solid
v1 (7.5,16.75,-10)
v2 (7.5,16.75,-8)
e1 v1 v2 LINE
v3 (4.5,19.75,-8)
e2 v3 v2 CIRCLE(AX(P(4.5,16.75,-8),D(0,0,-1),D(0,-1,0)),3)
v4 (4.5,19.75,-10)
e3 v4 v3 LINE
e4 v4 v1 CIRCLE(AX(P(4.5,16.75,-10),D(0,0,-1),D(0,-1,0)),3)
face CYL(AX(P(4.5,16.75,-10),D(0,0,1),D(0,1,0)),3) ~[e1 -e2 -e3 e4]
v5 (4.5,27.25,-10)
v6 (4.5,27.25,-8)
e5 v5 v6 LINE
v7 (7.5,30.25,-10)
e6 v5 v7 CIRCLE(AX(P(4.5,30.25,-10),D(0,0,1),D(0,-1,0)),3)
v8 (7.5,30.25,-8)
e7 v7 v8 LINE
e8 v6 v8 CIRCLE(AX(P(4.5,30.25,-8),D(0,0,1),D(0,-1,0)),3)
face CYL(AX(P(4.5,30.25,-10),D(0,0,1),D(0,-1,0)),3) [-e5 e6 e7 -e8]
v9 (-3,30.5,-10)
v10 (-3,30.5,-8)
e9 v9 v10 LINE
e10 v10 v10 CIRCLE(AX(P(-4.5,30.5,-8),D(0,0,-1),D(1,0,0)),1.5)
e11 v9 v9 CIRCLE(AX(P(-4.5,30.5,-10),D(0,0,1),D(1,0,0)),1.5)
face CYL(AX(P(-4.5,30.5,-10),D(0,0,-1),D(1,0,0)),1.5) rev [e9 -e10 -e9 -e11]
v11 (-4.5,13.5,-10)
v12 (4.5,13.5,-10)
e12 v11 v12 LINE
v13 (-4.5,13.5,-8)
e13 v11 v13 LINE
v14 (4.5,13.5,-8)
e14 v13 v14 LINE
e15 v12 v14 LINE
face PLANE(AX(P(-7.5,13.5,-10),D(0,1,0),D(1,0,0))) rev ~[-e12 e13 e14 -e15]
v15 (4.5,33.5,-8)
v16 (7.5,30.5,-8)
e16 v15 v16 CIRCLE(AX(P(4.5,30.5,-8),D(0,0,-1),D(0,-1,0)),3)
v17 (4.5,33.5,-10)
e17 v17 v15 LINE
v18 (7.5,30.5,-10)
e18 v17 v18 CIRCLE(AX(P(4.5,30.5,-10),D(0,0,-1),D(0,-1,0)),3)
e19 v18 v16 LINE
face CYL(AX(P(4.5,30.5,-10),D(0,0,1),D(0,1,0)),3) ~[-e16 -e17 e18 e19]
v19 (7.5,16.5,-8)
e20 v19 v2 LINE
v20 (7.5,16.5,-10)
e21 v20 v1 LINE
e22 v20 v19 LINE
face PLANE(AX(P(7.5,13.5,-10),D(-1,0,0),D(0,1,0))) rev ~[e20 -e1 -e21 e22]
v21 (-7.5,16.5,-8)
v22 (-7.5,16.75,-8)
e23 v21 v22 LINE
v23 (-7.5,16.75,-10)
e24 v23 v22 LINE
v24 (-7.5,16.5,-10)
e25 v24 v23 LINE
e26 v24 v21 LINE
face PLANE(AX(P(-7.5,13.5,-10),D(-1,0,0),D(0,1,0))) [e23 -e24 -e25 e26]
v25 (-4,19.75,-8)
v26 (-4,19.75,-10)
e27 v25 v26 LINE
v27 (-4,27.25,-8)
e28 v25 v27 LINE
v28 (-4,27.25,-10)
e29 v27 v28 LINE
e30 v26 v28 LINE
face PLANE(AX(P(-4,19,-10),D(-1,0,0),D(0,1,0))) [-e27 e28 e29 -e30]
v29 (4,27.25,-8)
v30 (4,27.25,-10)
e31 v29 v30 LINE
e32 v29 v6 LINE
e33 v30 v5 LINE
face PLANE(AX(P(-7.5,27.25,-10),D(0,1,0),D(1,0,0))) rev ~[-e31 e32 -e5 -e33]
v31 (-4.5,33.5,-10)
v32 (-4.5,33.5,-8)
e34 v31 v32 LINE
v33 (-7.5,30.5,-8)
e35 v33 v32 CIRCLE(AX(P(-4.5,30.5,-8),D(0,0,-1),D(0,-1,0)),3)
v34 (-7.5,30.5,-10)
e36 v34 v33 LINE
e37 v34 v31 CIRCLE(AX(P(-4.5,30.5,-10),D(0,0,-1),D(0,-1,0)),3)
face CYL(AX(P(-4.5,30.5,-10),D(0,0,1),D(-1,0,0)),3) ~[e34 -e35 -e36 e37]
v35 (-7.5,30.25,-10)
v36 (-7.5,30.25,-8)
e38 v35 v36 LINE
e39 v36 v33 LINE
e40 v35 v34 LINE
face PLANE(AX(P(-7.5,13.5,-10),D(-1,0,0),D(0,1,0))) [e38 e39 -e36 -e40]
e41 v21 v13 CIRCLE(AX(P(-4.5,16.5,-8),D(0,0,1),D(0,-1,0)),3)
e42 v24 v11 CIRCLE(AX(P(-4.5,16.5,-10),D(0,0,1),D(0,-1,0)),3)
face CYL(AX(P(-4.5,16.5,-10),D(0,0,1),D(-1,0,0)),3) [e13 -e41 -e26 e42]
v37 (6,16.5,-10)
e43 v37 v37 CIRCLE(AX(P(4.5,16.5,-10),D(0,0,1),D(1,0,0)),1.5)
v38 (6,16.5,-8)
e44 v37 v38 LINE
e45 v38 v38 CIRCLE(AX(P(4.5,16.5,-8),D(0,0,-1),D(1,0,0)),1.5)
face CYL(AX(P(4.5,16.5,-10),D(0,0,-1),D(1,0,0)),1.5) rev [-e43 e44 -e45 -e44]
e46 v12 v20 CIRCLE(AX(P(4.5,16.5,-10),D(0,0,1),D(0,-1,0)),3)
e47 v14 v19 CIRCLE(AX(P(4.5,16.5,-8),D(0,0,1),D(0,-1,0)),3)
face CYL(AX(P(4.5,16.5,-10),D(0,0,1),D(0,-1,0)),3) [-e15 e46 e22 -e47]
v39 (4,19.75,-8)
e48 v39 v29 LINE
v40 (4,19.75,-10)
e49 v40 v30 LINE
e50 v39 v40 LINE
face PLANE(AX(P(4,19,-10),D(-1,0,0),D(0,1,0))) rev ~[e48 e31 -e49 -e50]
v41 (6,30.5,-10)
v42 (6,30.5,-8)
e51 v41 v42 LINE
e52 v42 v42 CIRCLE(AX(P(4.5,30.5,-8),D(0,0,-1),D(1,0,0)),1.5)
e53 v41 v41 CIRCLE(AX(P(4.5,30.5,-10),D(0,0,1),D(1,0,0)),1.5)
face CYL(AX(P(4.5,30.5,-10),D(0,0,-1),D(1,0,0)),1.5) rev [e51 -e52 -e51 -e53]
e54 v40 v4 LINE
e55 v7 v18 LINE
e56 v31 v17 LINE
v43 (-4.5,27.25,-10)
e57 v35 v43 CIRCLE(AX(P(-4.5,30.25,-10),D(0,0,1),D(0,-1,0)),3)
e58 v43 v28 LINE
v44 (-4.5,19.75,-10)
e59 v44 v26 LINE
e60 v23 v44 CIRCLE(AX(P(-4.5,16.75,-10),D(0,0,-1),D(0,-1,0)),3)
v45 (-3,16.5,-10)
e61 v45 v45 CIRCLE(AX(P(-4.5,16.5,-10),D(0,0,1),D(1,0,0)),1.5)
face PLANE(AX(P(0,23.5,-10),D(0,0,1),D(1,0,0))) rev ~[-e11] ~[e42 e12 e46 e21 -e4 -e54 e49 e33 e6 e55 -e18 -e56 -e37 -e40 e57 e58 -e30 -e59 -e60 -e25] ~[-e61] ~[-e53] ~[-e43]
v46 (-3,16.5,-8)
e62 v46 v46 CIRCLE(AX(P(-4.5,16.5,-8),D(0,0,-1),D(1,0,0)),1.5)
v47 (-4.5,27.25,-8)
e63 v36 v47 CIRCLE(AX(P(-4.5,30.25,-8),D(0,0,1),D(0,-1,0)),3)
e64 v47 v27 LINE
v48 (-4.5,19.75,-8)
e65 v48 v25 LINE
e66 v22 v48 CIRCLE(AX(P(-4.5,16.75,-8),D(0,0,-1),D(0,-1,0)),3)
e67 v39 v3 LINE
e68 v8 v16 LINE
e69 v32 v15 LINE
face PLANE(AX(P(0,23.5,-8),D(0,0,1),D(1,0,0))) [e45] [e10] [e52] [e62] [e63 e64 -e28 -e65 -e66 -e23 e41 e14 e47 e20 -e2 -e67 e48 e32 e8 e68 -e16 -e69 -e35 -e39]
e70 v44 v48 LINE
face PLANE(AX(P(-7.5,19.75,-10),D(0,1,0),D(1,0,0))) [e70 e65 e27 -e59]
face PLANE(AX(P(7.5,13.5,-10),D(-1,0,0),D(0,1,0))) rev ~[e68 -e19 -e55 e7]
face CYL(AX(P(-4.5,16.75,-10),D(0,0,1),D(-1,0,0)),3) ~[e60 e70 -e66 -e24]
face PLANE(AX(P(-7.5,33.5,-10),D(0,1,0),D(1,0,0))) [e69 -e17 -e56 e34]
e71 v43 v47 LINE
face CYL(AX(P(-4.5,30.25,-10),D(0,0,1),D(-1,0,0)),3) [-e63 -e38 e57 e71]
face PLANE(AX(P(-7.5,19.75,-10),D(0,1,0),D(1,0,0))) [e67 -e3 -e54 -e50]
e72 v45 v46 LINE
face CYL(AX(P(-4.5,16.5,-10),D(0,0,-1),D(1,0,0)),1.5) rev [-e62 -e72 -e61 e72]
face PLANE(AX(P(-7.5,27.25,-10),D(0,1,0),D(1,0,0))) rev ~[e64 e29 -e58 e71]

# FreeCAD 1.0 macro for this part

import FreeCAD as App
import Part
import Sketcher
from FreeCAD import Vector


def edges_at(feature, points):
    """Names of the edges that pass closest to the given points."""
    edges = feature.Shape.Edges
    near = lambda p: min(range(len(edges)), key=lambda i: edges[i].distToShape(Part.Vertex(*p))[0])
    return sorted({f"Edge{near(p) + 1}" for p in points})

doc = App.newDocument("Part")
body = doc.addObject("PartDesign::Body", "Body")

sketch1 = doc.addObject("Sketcher::SketchObject", "Sketch")
body.addObject(sketch1)
sketch1.AttachmentSupport = (doc.XY_Plane, [""])
sketch1.MapMode = "FlatFace"
sketch1.AttachmentOffset = App.Placement(Vector(0, 0, -7), App.Rotation())
sketch1.addGeometry(Part.Circle(Vector(-4.5, -50.5, 0), Vector(0, 0, 1), 1.5), False)
sketch1.addConstraint(Sketcher.Constraint("Diameter", 0, 3.0))
sketch1.addConstraint(Sketcher.Constraint("DistanceX", 0, 3, -1, 1, 4.5))
sketch1.addConstraint(Sketcher.Constraint("DistanceY", 0, 3, -1, 1, 50.5))
pad1 = doc.addObject("PartDesign::Pad", "Pad")
body.addObject(pad1)
pad1.Profile = sketch1
pad1.Length = 14
body2 = doc.addObject("PartDesign::Body", "Body001")
body2.AllowCompound = True

sketch2 = doc.addObject("Sketcher::SketchObject", "Sketch001")
body2.addObject(sketch2)
sketch2.AttachmentSupport = (doc.getObject("XY_Plane001"), [""])
sketch2.MapMode = "FlatFace"
sketch2.AttachmentOffset = App.Placement(Vector(0, 0, -7), App.Rotation())
sketch2.addGeometry(Part.Circle(Vector(4.5, -50.5, 0), Vector(0, 0, 1), 1.5), False)
sketch2.addConstraint(Sketcher.Constraint("Diameter", 0, 3.0))
sketch2.addConstraint(Sketcher.Constraint("DistanceX", -1, 1, 0, 3, 4.5))
sketch2.addConstraint(Sketcher.Constraint("DistanceY", 0, 3, -1, 1, 50.5))
pad2 = doc.addObject("PartDesign::Pad", "Pad001")
body2.addObject(pad2)
pad2.Profile = sketch2
pad2.Length = 14
doc.recompute()

boolean = doc.addObject("PartDesign::Boolean", "Boolean")
body2.addObject(boolean)
boolean.Type = "Fuse"
boolean.addObjects([body])
body3 = doc.addObject("PartDesign::Body", "Body002")
body3.AllowCompound = True
doc.recompute()

body2.Placement = App.Placement(Vector(0, 4, -3), App.Rotation(Vector(0, 0, 1), 0))
boolean2 = doc.addObject("PartDesign::Boolean", "Boolean001")
body3.addObject(boolean2)
boolean2.Type = "Fuse"
boolean2.addObjects([body2])
body4 = doc.addObject("PartDesign::Body", "Body003")

sketch3 = doc.addObject("Sketcher::SketchObject", "Sketch002")
body4.addObject(sketch3)
sketch3.AttachmentSupport = (doc.getObject("XY_Plane003"), [""])
sketch3.MapMode = "FlatFace"
sketch3.AttachmentOffset = App.Placement(Vector(0, 0, -7), App.Rotation())
sketch3.addGeometry(Part.Circle(Vector(-4.5, -50.5, 0), Vector(0, 0, 1), 1.5), False)
sketch3.addConstraint(Sketcher.Constraint("Diameter", 0, 3.0))
sketch3.addConstraint(Sketcher.Constraint("DistanceX", 0, 3, -1, 1, 4.5))
sketch3.addConstraint(Sketcher.Constraint("DistanceY", 0, 3, -1, 1, 50.5))
pad3 = doc.addObject("PartDesign::Pad", "Pad002")
body4.addObject(pad3)
pad3.Profile = sketch3
pad3.Length = 14
body5 = doc.addObject("PartDesign::Body", "Body004")
body5.AllowCompound = True

sketch4 = doc.addObject("Sketcher::SketchObject", "Sketch003")
body5.addObject(sketch4)
sketch4.AttachmentSupport = (doc.getObject("XY_Plane004"), [""])
sketch4.MapMode = "FlatFace"
sketch4.AttachmentOffset = App.Placement(Vector(0, 0, -7), App.Rotation())
sketch4.addGeometry(Part.Circle(Vector(4.5, -50.5, 0), Vector(0, 0, 1), 1.5), False)
sketch4.addConstraint(Sketcher.Constraint("Diameter", 0, 3.0))
sketch4.addConstraint(Sketcher.Constraint("DistanceX", -1, 1, 0, 3, 4.5))
sketch4.addConstraint(Sketcher.Constraint("DistanceY", 0, 3, -1, 1, 50.5))
pad4 = doc.addObject("PartDesign::Pad", "Pad003")
body5.addObject(pad4)
pad4.Profile = sketch4
pad4.Length = 14
doc.recompute()

boolean3 = doc.addObject("PartDesign::Boolean", "Boolean002")
body5.addObject(boolean3)
boolean3.Type = "Fuse"
boolean3.addObjects([body4])
body6 = doc.addObject("PartDesign::Body", "Body005")
body6.AllowCompound = True
doc.recompute()

body5.Placement = App.Placement(Vector(0, 18, -3), App.Rotation(Vector(0, 0, 1), 0))
boolean4 = doc.addObject("PartDesign::Boolean", "Boolean003")
body6.addObject(boolean4)
boolean4.Type = "Fuse"
boolean4.addObjects([body5])
doc.recompute()

boolean5 = doc.addObject("PartDesign::Boolean", "Boolean004")
body6.addObject(boolean5)
boolean5.Type = "Fuse"
boolean5.addObjects([body3])
body7 = doc.addObject("PartDesign::Body", "Body006")

sketch5 = doc.addObject("Sketcher::SketchObject", "Sketch004")
body7.addObject(sketch5)
sketch5.AttachmentSupport = (doc.getObject("XY_Plane006"), [""])
sketch5.MapMode = "FlatFace"
sketch5.AttachmentOffset = App.Placement(Vector(0, 0, -11), App.Rotation())
sketch5.addGeometry(Part.LineSegment(Vector(-8, -36, 0), Vector(-8, -43, 0)), False)
sketch5.addGeometry(Part.LineSegment(Vector(-8, -43, 0), Vector(8, -43, 0)), False)
sketch5.addGeometry(Part.LineSegment(Vector(8, -43, 0), Vector(8, -36, 0)), False)
sketch5.addGeometry(Part.LineSegment(Vector(8, -36, 0), Vector(-8, -36, 0)), False)
sketch5.addConstraint(Sketcher.Constraint("Coincident", 0, 2, 1, 1))
sketch5.addConstraint(Sketcher.Constraint("Coincident", 1, 2, 2, 1))
sketch5.addConstraint(Sketcher.Constraint("Coincident", 2, 2, 3, 1))
sketch5.addConstraint(Sketcher.Constraint("Coincident", 3, 2, 0, 1))
sketch5.addConstraint(Sketcher.Constraint("Vertical", 0))
sketch5.addConstraint(Sketcher.Constraint("Horizontal", 1))
sketch5.addConstraint(Sketcher.Constraint("Vertical", 2))
sketch5.addConstraint(Sketcher.Constraint("Horizontal", 3))
sketch5.addConstraint(Sketcher.Constraint("DistanceX", 1, 1, 1, 2, 15.0))
sketch5.addConstraint(Sketcher.Constraint("DistanceY", 0, 2, 0, 1, 7.5))
sketch5.addConstraint(Sketcher.Constraint("DistanceX", 0, 2, -1, 1, 7.5))
sketch5.addConstraint(Sketcher.Constraint("DistanceY", 0, 2, -1, 1, 43.25))
pad5 = doc.addObject("PartDesign::Pad", "Pad004")
body7.addObject(pad5)
pad5.Profile = sketch5
pad5.Length = 2
body8 = doc.addObject("PartDesign::Body", "Body007")
body8.AllowCompound = True

sketch6 = doc.addObject("Sketcher::SketchObject", "Sketch005")
body8.addObject(sketch6)
sketch6.AttachmentSupport = (doc.getObject("XY_Plane007"), [""])
sketch6.MapMode = "FlatFace"
sketch6.AttachmentOffset = App.Placement(Vector(0, 0, -11), App.Rotation())
sketch6.addGeometry(Part.LineSegment(Vector(-8, -30, 0), Vector(-8, -50, 0)), False)
sketch6.addGeometry(Part.LineSegment(Vector(-8, -50, 0), Vector(8, -50, 0)), False)
sketch6.addGeometry(Part.LineSegment(Vector(8, -50, 0), Vector(8, -30, 0)), False)
sketch6.addGeometry(Part.LineSegment(Vector(8, -30, 0), Vector(-8, -30, 0)), False)
sketch6.addConstraint(Sketcher.Constraint("Coincident", 0, 2, 1, 1))
sketch6.addConstraint(Sketcher.Constraint("Coincident", 1, 2, 2, 1))
sketch6.addConstraint(Sketcher.Constraint("Coincident", 2, 2, 3, 1))
sketch6.addConstraint(Sketcher.Constraint("Coincident", 3, 2, 0, 1))
sketch6.addConstraint(Sketcher.Constraint("Vertical", 0))
sketch6.addConstraint(Sketcher.Constraint("Horizontal", 1))
sketch6.addConstraint(Sketcher.Constraint("Vertical", 2))
sketch6.addConstraint(Sketcher.Constraint("Horizontal", 3))
sketch6.addConstraint(Sketcher.Constraint("DistanceX", 1, 1, 1, 2, 15.0))
sketch6.addConstraint(Sketcher.Constraint("DistanceY", 0, 2, 0, 1, 20.0))
sketch6.addConstraint(Sketcher.Constraint("DistanceX", 0, 2, -1, 1, 7.5))
sketch6.addConstraint(Sketcher.Constraint("DistanceY", 0, 2, -1, 1, 49.5))
pad6 = doc.addObject("PartDesign::Pad", "Pad005")
body8.addObject(pad6)
pad6.Profile = sketch6
pad6.Length = 2
doc.recompute()

boolean6 = doc.addObject("PartDesign::Boolean", "Boolean005")
body8.addObject(boolean6)
boolean6.Type = "Cut"
boolean6.addObjects([body7])
doc.recompute()

fillet = doc.addObject("PartDesign::Fillet", "Fillet")
body8.addObject(fillet)
fillet.Base = (boolean6, edges_at(boolean6, [
    (-7.5, -43.25, -10),
    (-7.5, -49.5, -10),
    (7.5, -43.25, -10),
    (7.5, -49.5, -10),
    (-7.5, -29.5, -10),
    (-7.5, -35.75, -10),
    (7.5, -29.5, -10),
    (7.5, -35.75, -10),
]))
fillet.Radius = 3
body9 = doc.addObject("PartDesign::Body", "Body008")

sketch7 = doc.addObject("Sketcher::SketchObject", "Sketch006")
body9.addObject(sketch7)
sketch7.AttachmentSupport = (doc.getObject("XY_Plane008"), [""])
sketch7.MapMode = "FlatFace"
sketch7.AttachmentOffset = App.Placement(Vector(0, 0, -11), App.Rotation())
sketch7.addGeometry(Part.LineSegment(Vector(-4, -35, 0), Vector(-4, -44, 0)), False)
sketch7.addGeometry(Part.LineSegment(Vector(-4, -44, 0), Vector(4, -44, 0)), False)
sketch7.addGeometry(Part.LineSegment(Vector(4, -44, 0), Vector(4, -35, 0)), False)
sketch7.addGeometry(Part.LineSegment(Vector(4, -35, 0), Vector(-4, -35, 0)), False)
sketch7.addConstraint(Sketcher.Constraint("Coincident", 0, 2, 1, 1))
sketch7.addConstraint(Sketcher.Constraint("Coincident", 1, 2, 2, 1))
sketch7.addConstraint(Sketcher.Constraint("Coincident", 2, 2, 3, 1))
sketch7.addConstraint(Sketcher.Constraint("Coincident", 3, 2, 0, 1))
sketch7.addConstraint(Sketcher.Constraint("Vertical", 0))
sketch7.addConstraint(Sketcher.Constraint("Horizontal", 1))
sketch7.addConstraint(Sketcher.Constraint("Vertical", 2))
sketch7.addConstraint(Sketcher.Constraint("Horizontal", 3))
sketch7.addConstraint(Sketcher.Constraint("DistanceX", 1, 1, 1, 2, 8.0))
sketch7.addConstraint(Sketcher.Constraint("DistanceY", 0, 2, 0, 1, 9.0))
sketch7.addConstraint(Sketcher.Constraint("DistanceX", 0, 2, -1, 1, 4.0))
sketch7.addConstraint(Sketcher.Constraint("DistanceY", 0, 2, -1, 1, 44.0))
pad7 = doc.addObject("PartDesign::Pad", "Pad006")
body9.addObject(pad7)
pad7.Profile = sketch7
pad7.Length = 2
doc.recompute()

boolean7 = doc.addObject("PartDesign::Boolean", "Boolean006")
body9.addObject(boolean7)
boolean7.Type = "Fuse"
boolean7.addObjects([body8])
body10 = doc.addObject("PartDesign::Body", "Body009")
doc.recompute()

body9.Placement = App.Placement(Vector(0, 0, 1), App.Rotation(Vector(0, 0, 1), 0))
boolean8 = doc.addObject("PartDesign::Boolean", "Boolean007")
body10.addObject(boolean8)
boolean8.Type = "Fuse"
boolean8.addObjects([body9])
doc.recompute()

boolean9 = doc.addObject("PartDesign::Boolean", "Boolean008")
body10.addObject(boolean9)
boolean9.Type = "Cut"
boolean9.addObjects([body6])
body11 = doc.addObject("PartDesign::Body", "Body010")
doc.recompute()

body10.Placement = App.Placement(Vector(0, 63, 0), App.Rotation(Vector(0, 0, 1), 0))
boolean10 = doc.addObject("PartDesign::Boolean", "Boolean009")
body11.addObject(boolean10)
boolean10.Type = "Fuse"
boolean10.addObjects([body10])

doc.recompute()
